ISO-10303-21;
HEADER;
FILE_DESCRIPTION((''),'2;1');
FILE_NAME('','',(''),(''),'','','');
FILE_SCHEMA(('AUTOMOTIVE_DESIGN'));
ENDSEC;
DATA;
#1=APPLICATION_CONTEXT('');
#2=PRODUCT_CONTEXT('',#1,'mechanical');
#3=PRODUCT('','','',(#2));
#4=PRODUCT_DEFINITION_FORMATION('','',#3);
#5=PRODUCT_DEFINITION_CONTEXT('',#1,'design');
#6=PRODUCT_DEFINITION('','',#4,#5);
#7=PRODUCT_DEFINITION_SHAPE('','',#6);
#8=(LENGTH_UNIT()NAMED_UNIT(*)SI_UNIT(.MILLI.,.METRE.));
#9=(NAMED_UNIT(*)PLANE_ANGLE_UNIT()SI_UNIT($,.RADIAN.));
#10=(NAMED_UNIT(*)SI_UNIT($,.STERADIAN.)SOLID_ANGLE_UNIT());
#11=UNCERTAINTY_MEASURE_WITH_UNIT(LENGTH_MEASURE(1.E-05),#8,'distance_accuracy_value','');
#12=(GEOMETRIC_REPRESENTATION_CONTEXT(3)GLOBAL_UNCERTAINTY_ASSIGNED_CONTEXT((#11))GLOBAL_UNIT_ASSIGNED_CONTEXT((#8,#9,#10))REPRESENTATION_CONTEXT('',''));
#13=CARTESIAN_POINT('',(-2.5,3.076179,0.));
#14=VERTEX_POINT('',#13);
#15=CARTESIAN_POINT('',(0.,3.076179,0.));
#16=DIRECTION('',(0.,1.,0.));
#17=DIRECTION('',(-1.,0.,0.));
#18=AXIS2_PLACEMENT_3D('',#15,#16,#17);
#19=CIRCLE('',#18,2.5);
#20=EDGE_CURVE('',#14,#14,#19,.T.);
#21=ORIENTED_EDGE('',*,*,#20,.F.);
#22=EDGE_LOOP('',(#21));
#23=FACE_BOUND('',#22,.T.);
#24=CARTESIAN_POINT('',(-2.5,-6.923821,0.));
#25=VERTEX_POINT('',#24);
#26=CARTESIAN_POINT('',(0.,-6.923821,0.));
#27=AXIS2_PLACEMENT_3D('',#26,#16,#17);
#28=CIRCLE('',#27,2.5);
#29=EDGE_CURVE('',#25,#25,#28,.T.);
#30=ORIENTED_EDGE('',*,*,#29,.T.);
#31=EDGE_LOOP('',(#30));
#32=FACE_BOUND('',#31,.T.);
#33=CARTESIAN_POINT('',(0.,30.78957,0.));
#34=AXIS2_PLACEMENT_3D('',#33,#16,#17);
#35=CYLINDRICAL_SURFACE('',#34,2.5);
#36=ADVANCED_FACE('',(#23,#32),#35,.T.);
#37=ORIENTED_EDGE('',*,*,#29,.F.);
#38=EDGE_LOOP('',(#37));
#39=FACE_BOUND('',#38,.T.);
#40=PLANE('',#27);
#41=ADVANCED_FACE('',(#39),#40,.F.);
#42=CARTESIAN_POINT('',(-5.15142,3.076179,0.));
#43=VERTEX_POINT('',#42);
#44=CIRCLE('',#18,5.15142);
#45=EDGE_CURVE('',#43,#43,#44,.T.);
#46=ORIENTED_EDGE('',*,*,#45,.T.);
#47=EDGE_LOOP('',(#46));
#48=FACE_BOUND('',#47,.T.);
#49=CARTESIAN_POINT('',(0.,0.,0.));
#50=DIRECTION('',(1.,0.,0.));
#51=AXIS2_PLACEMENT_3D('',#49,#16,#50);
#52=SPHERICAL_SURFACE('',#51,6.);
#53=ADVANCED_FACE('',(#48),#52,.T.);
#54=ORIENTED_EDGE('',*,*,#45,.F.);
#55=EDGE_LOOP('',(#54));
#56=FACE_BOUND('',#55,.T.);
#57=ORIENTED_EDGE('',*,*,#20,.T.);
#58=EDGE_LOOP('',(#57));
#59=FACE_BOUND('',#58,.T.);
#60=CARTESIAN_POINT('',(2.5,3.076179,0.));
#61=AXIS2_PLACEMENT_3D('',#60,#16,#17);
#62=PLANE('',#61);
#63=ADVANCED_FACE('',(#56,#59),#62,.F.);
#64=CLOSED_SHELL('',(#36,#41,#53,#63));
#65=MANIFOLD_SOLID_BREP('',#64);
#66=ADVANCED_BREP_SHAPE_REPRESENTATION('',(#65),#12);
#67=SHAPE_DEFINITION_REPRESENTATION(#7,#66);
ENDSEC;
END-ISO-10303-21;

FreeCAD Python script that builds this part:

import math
import FreeCAD as App
import Part
import Sketcher

doc = App.newDocument("Part")
body = doc.addObject("PartDesign::Body", "Body")

# Sketch on XY plane
sketch1 = body.newObject("Sketcher::SketchObject", "Sketch")
sketch1.AttachmentSupport = (doc.getObject("XY_Plane"), [""])
sketch1.MapMode = "FlatFace"
sketch1.addGeometry([
    Part.LineSegment(App.Vector(0, -6.9, 0), App.Vector(2.5, -6.9, 0)),  # 0
    Part.LineSegment(App.Vector(2.5, -6.9, 0), App.Vector(2.5, 3.1, 0)),  # 1
    Part.LineSegment(App.Vector(2.5, 3.1, 0), App.Vector(5.2, 3.1, 0)),  # 2
    Part.ArcOfCircle(Part.Circle(App.Vector(0, 0, 0), App.Vector(0, 0, 1), 6), math.radians(31), math.radians(90)),  # 3
    Part.LineSegment(App.Vector(0, 6, 0), App.Vector(0, -6.9, 0)),  # 4
], False)
sketch1.addConstraint([
    Sketcher.Constraint("Coincident", 0, 2, 1, 1),
    Sketcher.Constraint("Coincident", 1, 2, 2, 1),
    Sketcher.Constraint("Coincident", 2, 2, 3, 1),
    Sketcher.Constraint("Coincident", 3, 2, 4, 1),
    Sketcher.Constraint("Coincident", 4, 2, 0, 1),
    Sketcher.Constraint("Horizontal", 0),
    Sketcher.Constraint("Vertical", 1),
    Sketcher.Constraint("Horizontal", 2),
    Sketcher.Constraint("Vertical", 4),
    Sketcher.Constraint("Coincident", 3, 3, -1, 1),
    Sketcher.Constraint("PointOnObject", 3, 2, -2),
    Sketcher.Constraint("Radius", 3, 6.0),
    Sketcher.Constraint("DistanceY", 1, 1, 1, 2, 10.0),
    Sketcher.Constraint("DistanceX", 0, 1, 0, 2, 2.5),
    Sketcher.Constraint("DistanceX", 2, 1, 2, 2, 2.65142),
])
revolution = body.newObject("PartDesign::Revolution", "Revolution")
revolution.Profile = sketch1
revolution.ReferenceAxis = (sketch1, ["V_Axis"])
revolution.Angle = 360

doc.recompute()
